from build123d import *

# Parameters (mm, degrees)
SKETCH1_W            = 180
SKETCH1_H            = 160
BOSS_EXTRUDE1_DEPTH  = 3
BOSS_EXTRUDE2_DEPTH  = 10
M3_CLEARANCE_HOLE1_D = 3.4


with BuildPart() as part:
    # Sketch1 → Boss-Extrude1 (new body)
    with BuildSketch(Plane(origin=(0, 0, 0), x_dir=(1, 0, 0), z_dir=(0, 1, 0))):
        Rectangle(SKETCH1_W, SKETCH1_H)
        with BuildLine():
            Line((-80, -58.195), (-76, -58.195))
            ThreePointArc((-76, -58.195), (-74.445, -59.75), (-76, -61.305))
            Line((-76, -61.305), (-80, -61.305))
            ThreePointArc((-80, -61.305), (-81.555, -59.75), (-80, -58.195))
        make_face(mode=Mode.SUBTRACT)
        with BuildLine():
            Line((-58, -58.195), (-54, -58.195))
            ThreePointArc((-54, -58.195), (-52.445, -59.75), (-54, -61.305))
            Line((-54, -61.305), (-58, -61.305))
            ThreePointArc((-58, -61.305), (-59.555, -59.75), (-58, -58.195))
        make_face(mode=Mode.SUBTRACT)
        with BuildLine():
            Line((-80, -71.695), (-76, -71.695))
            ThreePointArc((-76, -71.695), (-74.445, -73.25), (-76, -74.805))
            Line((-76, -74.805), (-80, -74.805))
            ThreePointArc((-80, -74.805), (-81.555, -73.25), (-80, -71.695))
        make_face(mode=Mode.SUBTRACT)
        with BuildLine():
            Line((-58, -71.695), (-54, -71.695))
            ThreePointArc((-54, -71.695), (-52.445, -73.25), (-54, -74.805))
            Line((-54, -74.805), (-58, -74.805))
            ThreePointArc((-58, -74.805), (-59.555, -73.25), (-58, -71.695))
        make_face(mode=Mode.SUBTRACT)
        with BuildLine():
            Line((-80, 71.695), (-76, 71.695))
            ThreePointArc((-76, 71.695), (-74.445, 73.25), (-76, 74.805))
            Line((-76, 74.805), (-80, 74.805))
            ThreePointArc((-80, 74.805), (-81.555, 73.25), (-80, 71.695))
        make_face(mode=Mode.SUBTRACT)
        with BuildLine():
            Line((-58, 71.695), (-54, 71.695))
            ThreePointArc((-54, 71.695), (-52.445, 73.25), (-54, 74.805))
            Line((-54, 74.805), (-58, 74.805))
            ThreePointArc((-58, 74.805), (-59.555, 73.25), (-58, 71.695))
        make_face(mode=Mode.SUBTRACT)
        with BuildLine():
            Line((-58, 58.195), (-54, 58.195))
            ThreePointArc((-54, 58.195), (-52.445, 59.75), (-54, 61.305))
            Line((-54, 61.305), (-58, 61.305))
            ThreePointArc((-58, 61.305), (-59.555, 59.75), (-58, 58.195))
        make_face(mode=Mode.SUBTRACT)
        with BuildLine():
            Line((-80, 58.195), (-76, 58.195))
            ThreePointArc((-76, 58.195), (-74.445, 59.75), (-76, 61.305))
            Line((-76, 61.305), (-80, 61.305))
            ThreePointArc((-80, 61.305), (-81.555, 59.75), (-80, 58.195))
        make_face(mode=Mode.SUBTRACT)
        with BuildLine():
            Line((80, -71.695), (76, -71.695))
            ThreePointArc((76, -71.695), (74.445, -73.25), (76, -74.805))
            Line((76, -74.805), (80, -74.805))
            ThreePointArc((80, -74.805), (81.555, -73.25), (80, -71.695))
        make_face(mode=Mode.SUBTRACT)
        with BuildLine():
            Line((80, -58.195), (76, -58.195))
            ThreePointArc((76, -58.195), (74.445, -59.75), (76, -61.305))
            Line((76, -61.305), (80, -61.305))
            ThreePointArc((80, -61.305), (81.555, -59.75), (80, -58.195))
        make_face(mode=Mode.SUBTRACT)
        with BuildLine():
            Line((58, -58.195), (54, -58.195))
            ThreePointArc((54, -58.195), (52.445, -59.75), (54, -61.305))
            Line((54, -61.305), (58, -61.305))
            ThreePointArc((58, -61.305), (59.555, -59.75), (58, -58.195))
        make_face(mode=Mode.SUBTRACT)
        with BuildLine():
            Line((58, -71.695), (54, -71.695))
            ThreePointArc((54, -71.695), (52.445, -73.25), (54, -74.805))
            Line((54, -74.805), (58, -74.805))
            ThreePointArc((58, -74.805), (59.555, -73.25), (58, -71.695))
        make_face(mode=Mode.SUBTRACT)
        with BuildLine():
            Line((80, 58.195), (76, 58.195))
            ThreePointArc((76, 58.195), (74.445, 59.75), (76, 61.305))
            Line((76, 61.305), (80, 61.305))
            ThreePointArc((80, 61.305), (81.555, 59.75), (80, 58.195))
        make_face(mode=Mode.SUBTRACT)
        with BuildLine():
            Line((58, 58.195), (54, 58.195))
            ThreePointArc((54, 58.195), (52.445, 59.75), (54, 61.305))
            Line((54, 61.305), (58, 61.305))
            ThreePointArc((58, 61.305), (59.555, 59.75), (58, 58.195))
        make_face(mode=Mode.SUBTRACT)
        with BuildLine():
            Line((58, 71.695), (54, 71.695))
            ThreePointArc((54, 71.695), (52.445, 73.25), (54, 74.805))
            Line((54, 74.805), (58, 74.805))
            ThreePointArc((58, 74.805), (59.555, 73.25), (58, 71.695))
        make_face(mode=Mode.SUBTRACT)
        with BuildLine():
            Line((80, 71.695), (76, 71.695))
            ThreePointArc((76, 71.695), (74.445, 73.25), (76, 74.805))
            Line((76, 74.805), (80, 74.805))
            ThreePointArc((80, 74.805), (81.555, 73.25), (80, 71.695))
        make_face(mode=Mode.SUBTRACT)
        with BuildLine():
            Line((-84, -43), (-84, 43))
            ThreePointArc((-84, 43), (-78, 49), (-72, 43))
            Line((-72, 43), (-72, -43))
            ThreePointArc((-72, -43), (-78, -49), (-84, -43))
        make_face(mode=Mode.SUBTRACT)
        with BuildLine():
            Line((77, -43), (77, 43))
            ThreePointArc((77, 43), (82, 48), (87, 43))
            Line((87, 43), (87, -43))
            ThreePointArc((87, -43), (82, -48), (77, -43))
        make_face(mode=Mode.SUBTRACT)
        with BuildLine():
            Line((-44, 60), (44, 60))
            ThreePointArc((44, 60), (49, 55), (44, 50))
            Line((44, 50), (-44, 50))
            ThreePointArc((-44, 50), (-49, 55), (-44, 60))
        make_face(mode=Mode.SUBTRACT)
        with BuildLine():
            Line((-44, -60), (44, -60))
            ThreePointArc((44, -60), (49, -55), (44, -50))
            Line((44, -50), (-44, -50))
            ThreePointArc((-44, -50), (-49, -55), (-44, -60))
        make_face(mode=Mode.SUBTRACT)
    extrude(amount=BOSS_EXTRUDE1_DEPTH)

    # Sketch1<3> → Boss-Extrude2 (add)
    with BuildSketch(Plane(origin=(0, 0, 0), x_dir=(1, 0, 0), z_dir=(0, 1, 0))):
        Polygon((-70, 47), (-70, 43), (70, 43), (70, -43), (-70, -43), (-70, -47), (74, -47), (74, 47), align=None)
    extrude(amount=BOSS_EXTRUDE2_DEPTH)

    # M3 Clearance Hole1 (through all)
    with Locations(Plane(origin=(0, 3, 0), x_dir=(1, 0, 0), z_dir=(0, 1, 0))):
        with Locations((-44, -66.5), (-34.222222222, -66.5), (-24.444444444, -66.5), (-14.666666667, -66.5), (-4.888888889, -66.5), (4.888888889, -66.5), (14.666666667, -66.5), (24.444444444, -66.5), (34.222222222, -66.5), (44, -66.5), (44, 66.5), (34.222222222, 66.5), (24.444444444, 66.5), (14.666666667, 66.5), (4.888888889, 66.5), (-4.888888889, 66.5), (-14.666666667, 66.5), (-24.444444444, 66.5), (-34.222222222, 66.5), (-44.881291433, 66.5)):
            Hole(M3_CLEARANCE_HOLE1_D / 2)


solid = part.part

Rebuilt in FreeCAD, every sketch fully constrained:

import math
import FreeCAD as App
import Part
import Sketcher

doc = App.newDocument("Part")
params = doc.addObject("Spreadsheet::Sheet", "Params")
for row, (alias, value) in enumerate([
    ("sketch1_radius", "5 mm"),
    ("sketch1_radius2", "6 mm"),
    ("sketch1_width", "180 mm"),
    ("sketch1_width2", "4 mm"),
    ("sketch1_width3", "88 mm"),
    ("pad1_length", "3 mm"),
    ("sketch2_width", "140 mm"),
    ("sketch2_width2", "144 mm"),
    ("sketch2_height", "4 mm"),
    ("sketch2_height2", "86 mm"),
    ("pad2_length", "10 mm"),
    ("sketch3_diameter", "3.4 mm"),
    ("hole_diameter", "3.4 mm"),
], start=1):
    params.set(f"A{row}", alias)
    params.set(f"B{row}", "=" + value)
    params.setAlias(f"B{row}", alias)

body = doc.addObject("PartDesign::Body", "Body")

# Sketch on XZ plane
sketch1 = doc.addObject("Sketcher::SketchObject", "Sketch")
body.addObject(sketch1)
sketch1.AttachmentSupport = (doc.XZ_Plane, [""])
sketch1.MapMode = "FlatFace"
sketch1.addGeometry([
    Part.LineSegment(App.Vector(-90, -80, 0), App.Vector(-90, 80, 0)),  # 0
    Part.LineSegment(App.Vector(-90, 80, 0), App.Vector(90, 80, 0)),  # 1
    Part.LineSegment(App.Vector(90, 80, 0), App.Vector(90, -80, 0)),  # 2
    Part.LineSegment(App.Vector(90, -80, 0), App.Vector(-90, -80, 0)),  # 3
    Part.ArcOfCircle(Part.Circle(App.Vector(-80, 73.2, 0), App.Vector(0, 0, 1), 1.6), math.radians(90), math.radians(270)),  # 4
    Part.LineSegment(App.Vector(-80, 71.7, 0), App.Vector(-76, 71.7, 0)),  # 5
    Part.ArcOfCircle(Part.Circle(App.Vector(-76, 73.2, 0), App.Vector(0, 0, 1), 1.6), math.radians(-90), math.radians(90)),  # 6
    Part.LineSegment(App.Vector(-76, 74.8, 0), App.Vector(-80, 74.8, 0)),  # 7
    Part.ArcOfCircle(Part.Circle(App.Vector(-80, 59.8, 0), App.Vector(0, 0, 1), 1.6), math.radians(90), math.radians(270)),  # 8
    Part.LineSegment(App.Vector(-80, 58.2, 0), App.Vector(-76, 58.2, 0)),  # 9
    Part.ArcOfCircle(Part.Circle(App.Vector(-76, 59.8, 0), App.Vector(0, 0, 1), 1.6), math.radians(-90), math.radians(90)),  # 10
    Part.LineSegment(App.Vector(-76, 61.3, 0), App.Vector(-80, 61.3, 0)),  # 11
    Part.ArcOfCircle(Part.Circle(App.Vector(-58, 73.2, 0), App.Vector(0, 0, 1), 1.6), math.radians(90), math.radians(270)),  # 12
    Part.LineSegment(App.Vector(-58, 71.7, 0), App.Vector(-54, 71.7, 0)),  # 13
    Part.ArcOfCircle(Part.Circle(App.Vector(-54, 73.2, 0), App.Vector(0, 0, 1), 1.6), math.radians(-90), math.radians(90)),  # 14
    Part.LineSegment(App.Vector(-54, 74.8, 0), App.Vector(-58, 74.8, 0)),  # 15
    Part.ArcOfCircle(Part.Circle(App.Vector(-58, 59.8, 0), App.Vector(0, 0, 1), 1.6), math.radians(90), math.radians(270)),  # 16
    Part.LineSegment(App.Vector(-58, 58.2, 0), App.Vector(-54, 58.2, 0)),  # 17
    Part.ArcOfCircle(Part.Circle(App.Vector(-54, 59.8, 0), App.Vector(0, 0, 1), 1.6), math.radians(-90), math.radians(90)),  # 18
    Part.LineSegment(App.Vector(-54, 61.3, 0), App.Vector(-58, 61.3, 0)),  # 19
    Part.LineSegment(App.Vector(44, 60, 0), App.Vector(-44, 60, 0)),  # 20
    Part.ArcOfCircle(Part.Circle(App.Vector(-44, 55, 0), App.Vector(0, 0, 1), 5), math.radians(90), math.radians(270)),  # 21
    Part.LineSegment(App.Vector(-44, 50, 0), App.Vector(44, 50, 0)),  # 22
    Part.ArcOfCircle(Part.Circle(App.Vector(44, 55, 0), App.Vector(0, 0, 1), 5), math.radians(-90), math.radians(90)),  # 23
    Part.LineSegment(App.Vector(54, 71.7, 0), App.Vector(58, 71.7, 0)),  # 24
    Part.ArcOfCircle(Part.Circle(App.Vector(58, 73.2, 0), App.Vector(0, 0, 1), 1.6), math.radians(-90), math.radians(90)),  # 25
    Part.LineSegment(App.Vector(58, 74.8, 0), App.Vector(54, 74.8, 0)),  # 26
    Part.ArcOfCircle(Part.Circle(App.Vector(54, 73.2, 0), App.Vector(0, 0, 1), 1.6), math.radians(90), math.radians(270)),  # 27
    Part.LineSegment(App.Vector(54, 58.2, 0), App.Vector(58, 58.2, 0)),  # 28
    Part.ArcOfCircle(Part.Circle(App.Vector(58, 59.8, 0), App.Vector(0, 0, 1), 1.6), math.radians(-90), math.radians(90)),  # 29
    Part.LineSegment(App.Vector(58, 61.3, 0), App.Vector(54, 61.3, 0)),  # 30
    Part.ArcOfCircle(Part.Circle(App.Vector(54, 59.8, 0), App.Vector(0, 0, 1), 1.6), math.radians(90), math.radians(270)),  # 31
    Part.LineSegment(App.Vector(76, 71.7, 0), App.Vector(80, 71.7, 0)),  # 32
    Part.ArcOfCircle(Part.Circle(App.Vector(80, 73.2, 0), App.Vector(0, 0, 1), 1.6), math.radians(-90), math.radians(90)),  # 33
    Part.LineSegment(App.Vector(80, 74.8, 0), App.Vector(76, 74.8, 0)),  # 34
    Part.ArcOfCircle(Part.Circle(App.Vector(76, 73.2, 0), App.Vector(0, 0, 1), 1.6), math.radians(90), math.radians(270)),  # 35
    Part.LineSegment(App.Vector(76, 58.2, 0), App.Vector(80, 58.2, 0)),  # 36
    Part.ArcOfCircle(Part.Circle(App.Vector(80, 59.8, 0), App.Vector(0, 0, 1), 1.6), math.radians(-90), math.radians(90)),  # 37
    Part.LineSegment(App.Vector(80, 61.3, 0), App.Vector(76, 61.3, 0)),  # 38
    Part.ArcOfCircle(Part.Circle(App.Vector(76, 59.8, 0), App.Vector(0, 0, 1), 1.6), math.radians(90), math.radians(270)),  # 39
    Part.ArcOfCircle(Part.Circle(App.Vector(-78, 43, 0), App.Vector(0, 0, 1), 6), math.radians(0), math.radians(180)),  # 40
    Part.LineSegment(App.Vector(-84, 43, 0), App.Vector(-84, -43, 0)),  # 41
    Part.ArcOfCircle(Part.Circle(App.Vector(-78, -43, 0), App.Vector(0, 0, 1), 6), math.radians(180), math.radians(360)),  # 42
    Part.LineSegment(App.Vector(-72, -43, 0), App.Vector(-72, 43, 0)),  # 43
    Part.LineSegment(App.Vector(-76, -58.2, 0), App.Vector(-80, -58.2, 0)),  # 44
    Part.ArcOfCircle(Part.Circle(App.Vector(-80, -59.8, 0), App.Vector(0, 0, 1), 1.6), math.radians(90), math.radians(270)),  # 45
    Part.LineSegment(App.Vector(-80, -61.3, 0), App.Vector(-76, -61.3, 0)),  # 46
    Part.ArcOfCircle(Part.Circle(App.Vector(-76, -59.8, 0), App.Vector(0, 0, 1), 1.6), math.radians(-90), math.radians(90)),  # 47
    Part.LineSegment(App.Vector(-76, -71.7, 0), App.Vector(-80, -71.7, 0)),  # 48
    Part.ArcOfCircle(Part.Circle(App.Vector(-80, -73.2, 0), App.Vector(0, 0, 1), 1.6), math.radians(90), math.radians(270)),  # 49
    Part.LineSegment(App.Vector(-80, -74.8, 0), App.Vector(-76, -74.8, 0)),  # 50
    Part.ArcOfCircle(Part.Circle(App.Vector(-76, -73.2, 0), App.Vector(0, 0, 1), 1.6), math.radians(-90), math.radians(90)),  # 51
    Part.LineSegment(App.Vector(-54, -58.2, 0), App.Vector(-58, -58.2, 0)),  # 52
    Part.ArcOfCircle(Part.Circle(App.Vector(-58, -59.8, 0), App.Vector(0, 0, 1), 1.6), math.radians(90), math.radians(270)),  # 53
    Part.LineSegment(App.Vector(-58, -61.3, 0), App.Vector(-54, -61.3, 0)),  # 54
    Part.ArcOfCircle(Part.Circle(App.Vector(-54, -59.8, 0), App.Vector(0, 0, 1), 1.6), math.radians(-90), math.radians(90)),  # 55
    Part.LineSegment(App.Vector(-54, -71.7, 0), App.Vector(-58, -71.7, 0)),  # 56
    Part.ArcOfCircle(Part.Circle(App.Vector(-58, -73.2, 0), App.Vector(0, 0, 1), 1.6), math.radians(90), math.radians(270)),  # 57
    Part.LineSegment(App.Vector(-58, -74.8, 0), App.Vector(-54, -74.8, 0)),  # 58
    Part.ArcOfCircle(Part.Circle(App.Vector(-54, -73.2, 0), App.Vector(0, 0, 1), 1.6), math.radians(-90), math.radians(90)),  # 59
    Part.ArcOfCircle(Part.Circle(App.Vector(-44, -55, 0), App.Vector(0, 0, 1), 5), math.radians(90), math.radians(270)),  # 60
    Part.LineSegment(App.Vector(-44, -60, 0), App.Vector(44, -60, 0)),  # 61
    Part.ArcOfCircle(Part.Circle(App.Vector(44, -55, 0), App.Vector(0, 0, 1), 5), math.radians(-90), math.radians(90)),  # 62
    Part.LineSegment(App.Vector(44, -50, 0), App.Vector(-44, -50, 0)),  # 63
    Part.ArcOfCircle(Part.Circle(App.Vector(82, 43, 0), App.Vector(0, 0, 1), 5), math.radians(0), math.radians(180)),  # 64
    Part.LineSegment(App.Vector(77, 43, 0), App.Vector(77, -43, 0)),  # 65
    Part.ArcOfCircle(Part.Circle(App.Vector(82, -43, 0), App.Vector(0, 0, 1), 5), math.radians(180), math.radians(360)),  # 66
    Part.LineSegment(App.Vector(87, -43, 0), App.Vector(87, 43, 0)),  # 67
    Part.ArcOfCircle(Part.Circle(App.Vector(58, -59.8, 0), App.Vector(0, 0, 1), 1.6), math.radians(-90), math.radians(90)),  # 68
    Part.LineSegment(App.Vector(58, -58.2, 0), App.Vector(54, -58.2, 0)),  # 69
    Part.ArcOfCircle(Part.Circle(App.Vector(54, -59.8, 0), App.Vector(0, 0, 1), 1.6), math.radians(90), math.radians(270)),  # 70
    Part.LineSegment(App.Vector(54, -61.3, 0), App.Vector(58, -61.3, 0)),  # 71
    Part.ArcOfCircle(Part.Circle(App.Vector(58, -73.2, 0), App.Vector(0, 0, 1), 1.6), math.radians(-90), math.radians(90)),  # 72
    Part.LineSegment(App.Vector(58, -71.7, 0), App.Vector(54, -71.7, 0)),  # 73
    Part.ArcOfCircle(Part.Circle(App.Vector(54, -73.2, 0), App.Vector(0, 0, 1), 1.6), math.radians(90), math.radians(270)),  # 74
    Part.LineSegment(App.Vector(54, -74.8, 0), App.Vector(58, -74.8, 0)),  # 75
    Part.ArcOfCircle(Part.Circle(App.Vector(80, -59.8, 0), App.Vector(0, 0, 1), 1.6), math.radians(-90), math.radians(90)),  # 76
    Part.LineSegment(App.Vector(80, -58.2, 0), App.Vector(76, -58.2, 0)),  # 77
    Part.ArcOfCircle(Part.Circle(App.Vector(76, -59.8, 0), App.Vector(0, 0, 1), 1.6), math.radians(90), math.radians(270)),  # 78
    Part.LineSegment(App.Vector(76, -61.3, 0), App.Vector(80, -61.3, 0)),  # 79
    Part.ArcOfCircle(Part.Circle(App.Vector(80, -73.2, 0), App.Vector(0, 0, 1), 1.6), math.radians(-90), math.radians(90)),  # 80
    Part.LineSegment(App.Vector(80, -71.7, 0), App.Vector(76, -71.7, 0)),  # 81
    Part.ArcOfCircle(Part.Circle(App.Vector(76, -73.2, 0), App.Vector(0, 0, 1), 1.6), math.radians(90), math.radians(270)),  # 82
    Part.LineSegment(App.Vector(76, -74.8, 0), App.Vector(80, -74.8, 0)),  # 83
], False)
sketch1.addConstraint([
    Sketcher.Constraint("Coincident", 0, 2, 1, 1),
    Sketcher.Constraint("Coincident", 1, 2, 2, 1),
    Sketcher.Constraint("Coincident", 2, 2, 3, 1),
    Sketcher.Constraint("Coincident", 3, 2, 0, 1),
    Sketcher.Constraint("Tangent", 4, 2, 5, 1),
    Sketcher.Constraint("Tangent", 5, 2, 6, 1),
    Sketcher.Constraint("Tangent", 6, 2, 7, 1),
    Sketcher.Constraint("Tangent", 7, 2, 4, 1),
    Sketcher.Constraint("Tangent", 8, 2, 9, 1),
    Sketcher.Constraint("Tangent", 9, 2, 10, 1),
    Sketcher.Constraint("Tangent", 10, 2, 11, 1),
    Sketcher.Constraint("Tangent", 11, 2, 8, 1),
    Sketcher.Constraint("Tangent", 12, 2, 13, 1),
    Sketcher.Constraint("Tangent", 13, 2, 14, 1),
    Sketcher.Constraint("Tangent", 14, 2, 15, 1),
    Sketcher.Constraint("Tangent", 15, 2, 12, 1),
    Sketcher.Constraint("Tangent", 16, 2, 17, 1),
    Sketcher.Constraint("Tangent", 17, 2, 18, 1),
    Sketcher.Constraint("Tangent", 18, 2, 19, 1),
    Sketcher.Constraint("Tangent", 19, 2, 16, 1),
    Sketcher.Constraint("Tangent", 20, 2, 21, 1),
    Sketcher.Constraint("Tangent", 21, 2, 22, 1),
    Sketcher.Constraint("Tangent", 22, 2, 23, 1),
    Sketcher.Constraint("Tangent", 23, 2, 20, 1),
    Sketcher.Constraint("Tangent", 24, 2, 25, 1),
    Sketcher.Constraint("Tangent", 25, 2, 26, 1),
    Sketcher.Constraint("Tangent", 26, 2, 27, 1),
    Sketcher.Constraint("Tangent", 27, 2, 24, 1),
    Sketcher.Constraint("Tangent", 28, 2, 29, 1),
    Sketcher.Constraint("Tangent", 29, 2, 30, 1),
    Sketcher.Constraint("Tangent", 30, 2, 31, 1),
    Sketcher.Constraint("Tangent", 31, 2, 28, 1),
    Sketcher.Constraint("Tangent", 32, 2, 33, 1),
    Sketcher.Constraint("Tangent", 33, 2, 34, 1),
    Sketcher.Constraint("Tangent", 34, 2, 35, 1),
    Sketcher.Constraint("Tangent", 35, 2, 32, 1),
    Sketcher.Constraint("Tangent", 36, 2, 37, 1),
    Sketcher.Constraint("Tangent", 37, 2, 38, 1),
    Sketcher.Constraint("Tangent", 38, 2, 39, 1),
    Sketcher.Constraint("Tangent", 39, 2, 36, 1),
    Sketcher.Constraint("Tangent", 40, 2, 41, 1),
    Sketcher.Constraint("Tangent", 41, 2, 42, 1),
    Sketcher.Constraint("Tangent", 42, 2, 43, 1),
    Sketcher.Constraint("Tangent", 43, 2, 40, 1),
    Sketcher.Constraint("Tangent", 44, 2, 45, 1),
    Sketcher.Constraint("Tangent", 45, 2, 46, 1),
    Sketcher.Constraint("Tangent", 46, 2, 47, 1),
    Sketcher.Constraint("Tangent", 47, 2, 44, 1),
    Sketcher.Constraint("Tangent", 48, 2, 49, 1),
    Sketcher.Constraint("Tangent", 49, 2, 50, 1),
    Sketcher.Constraint("Tangent", 50, 2, 51, 1),
    Sketcher.Constraint("Tangent", 51, 2, 48, 1),
    Sketcher.Constraint("Tangent", 52, 2, 53, 1),
    Sketcher.Constraint("Tangent", 53, 2, 54, 1),
    Sketcher.Constraint("Tangent", 54, 2, 55, 1),
    Sketcher.Constraint("Tangent", 55, 2, 52, 1),
    Sketcher.Constraint("Tangent", 56, 2, 57, 1),
    Sketcher.Constraint("Tangent", 57, 2, 58, 1),
    Sketcher.Constraint("Tangent", 58, 2, 59, 1),
    Sketcher.Constraint("Tangent", 59, 2, 56, 1),
    Sketcher.Constraint("Tangent", 60, 2, 61, 1),
    Sketcher.Constraint("Tangent", 61, 2, 62, 1),
    Sketcher.Constraint("Tangent", 62, 2, 63, 1),
    Sketcher.Constraint("Tangent", 63, 2, 60, 1),
    Sketcher.Constraint("Tangent", 64, 2, 65, 1),
    Sketcher.Constraint("Tangent", 65, 2, 66, 1),
    Sketcher.Constraint("Tangent", 66, 2, 67, 1),
    Sketcher.Constraint("Tangent", 67, 2, 64, 1),
    Sketcher.Constraint("Tangent", 68, 2, 69, 1),
    Sketcher.Constraint("Tangent", 69, 2, 70, 1),
    Sketcher.Constraint("Tangent", 70, 2, 71, 1),
    Sketcher.Constraint("Tangent", 71, 2, 68, 1),
    Sketcher.Constraint("Tangent", 72, 2, 73, 1),
    Sketcher.Constraint("Tangent", 73, 2, 74, 1),
    Sketcher.Constraint("Tangent", 74, 2, 75, 1),
    Sketcher.Constraint("Tangent", 75, 2, 72, 1),
    Sketcher.Constraint("Tangent", 76, 2, 77, 1),
    Sketcher.Constraint("Tangent", 77, 2, 78, 1),
    Sketcher.Constraint("Tangent", 78, 2, 79, 1),
    Sketcher.Constraint("Tangent", 79, 2, 76, 1),
    Sketcher.Constraint("Tangent", 80, 2, 81, 1),
    Sketcher.Constraint("Tangent", 81, 2, 82, 1),
    Sketcher.Constraint("Tangent", 82, 2, 83, 1),
    Sketcher.Constraint("Tangent", 83, 2, 80, 1),
    Sketcher.Constraint("Vertical", 0),
    Sketcher.Constraint("Horizontal", 1),
    Sketcher.Constraint("Vertical", 2),
    Sketcher.Constraint("Horizontal", 3),
    Sketcher.Constraint("Horizontal", 5),
    Sketcher.Constraint("Horizontal", 7),
    Sketcher.Constraint("Horizontal", 9),
    Sketcher.Constraint("Horizontal", 11),
    Sketcher.Constraint("Horizontal", 13),
    Sketcher.Constraint("Horizontal", 15),
    Sketcher.Constraint("Horizontal", 17),
    Sketcher.Constraint("Horizontal", 19),
    Sketcher.Constraint("Horizontal", 20),
    Sketcher.Constraint("Horizontal", 22),
    Sketcher.Constraint("Horizontal", 24),
    Sketcher.Constraint("Horizontal", 26),
    Sketcher.Constraint("Horizontal", 28),
    Sketcher.Constraint("Horizontal", 30),
    Sketcher.Constraint("Horizontal", 32),
    Sketcher.Constraint("Horizontal", 34),
    Sketcher.Constraint("Horizontal", 36),
    Sketcher.Constraint("Horizontal", 38),
    Sketcher.Constraint("Vertical", 41),
    Sketcher.Constraint("Vertical", 43),
    Sketcher.Constraint("Horizontal", 44),
    Sketcher.Constraint("Horizontal", 46),
    Sketcher.Constraint("Horizontal", 48),
    Sketcher.Constraint("Horizontal", 50),
    Sketcher.Constraint("Horizontal", 52),
    Sketcher.Constraint("Horizontal", 54),
    Sketcher.Constraint("Horizontal", 56),
    Sketcher.Constraint("Horizontal", 58),
    Sketcher.Constraint("Horizontal", 61),
    Sketcher.Constraint("Horizontal", 63),
    Sketcher.Constraint("Vertical", 65),
    Sketcher.Constraint("Vertical", 67),
    Sketcher.Constraint("Horizontal", 69),
    Sketcher.Constraint("Horizontal", 71),
    Sketcher.Constraint("Horizontal", 73),
    Sketcher.Constraint("Horizontal", 75),
    Sketcher.Constraint("Horizontal", 77),
    Sketcher.Constraint("Horizontal", 79),
    Sketcher.Constraint("Horizontal", 81),
    Sketcher.Constraint("Horizontal", 83),
    Sketcher.Constraint("Equal", 6, 8),
    Sketcher.Constraint("Equal", 10, 12),
    Sketcher.Constraint("Equal", 14, 16),
    Sketcher.Constraint("Equal", 18, 25),
    Sketcher.Constraint("Equal", 27, 29),
    Sketcher.Constraint("Equal", 31, 33),
    Sketcher.Constraint("Equal", 35, 37),
    Sketcher.Constraint("Equal", 39, 45),
    Sketcher.Constraint("Equal", 47, 49),
    Sketcher.Constraint("Equal", 51, 53),
    Sketcher.Constraint("Equal", 55, 57),
    Sketcher.Constraint("Equal", 23, 60),
    Sketcher.Constraint("Equal", 62, 64),
    Sketcher.Constraint("Equal", 59, 68),
    Sketcher.Constraint("Equal", 70, 72),
    Sketcher.Constraint("Equal", 74, 76),
    Sketcher.Constraint("Equal", 78, 80),
    Sketcher.Constraint("Symmetric", 37, 3, 45, 3, -1, 1),
    Sketcher.Constraint("Symmetric", 33, 3, 49, 3, -1, 1),
    Sketcher.Constraint("Symmetric", 29, 3, 53, 3, -1, 1),
    Sketcher.Constraint("Symmetric", 25, 3, 57, 3, -1, 1),
    Sketcher.Constraint("Symmetric", 23, 3, 60, 3, -1, 1),
    Sketcher.Constraint("Symmetric", 16, 3, 68, 3, -1, 1),
    Sketcher.Constraint("Symmetric", 12, 3, 72, 3, -1, 1),
    Sketcher.Constraint("Symmetric", 8, 3, 76, 3, -1, 1),
    Sketcher.Constraint("Symmetric", 4, 3, 80, 3, -1, 1),
    Sketcher.Constraint("Symmetric", 0, 2, 2, 2, -1, 1),
    Sketcher.Constraint("Symmetric", 12, 3, 25, 3, -2),
    Sketcher.Constraint("Symmetric", 16, 3, 29, 3, -2),
    Sketcher.Constraint("Symmetric", 4, 3, 33, 3, -2),
    Sketcher.Constraint("Symmetric", 8, 3, 37, 3, -2),
    Sketcher.Constraint("Horizontal", 6, 3, 12, 3),
    Sketcher.Constraint("Horizontal", 10, 3, 16, 3),
    Sketcher.Constraint("Horizontal", 40, 3, 64, 3),
    Sketcher.Constraint("Horizontal", 42, 3, 66, 3),
    Sketcher.Constraint("Vertical", 4, 3, 8, 3),
    Sketcher.Constraint("Vertical", 6, 3, 10, 3),
    Sketcher.Constraint("Vertical", 12, 3, 16, 3),
    Sketcher.Constraint("Vertical", 14, 3, 18, 3),
    Sketcher.Constraint("Vertical", 27, 3, 31, 3),
    Sketcher.Constraint("Vertical", 35, 3, 39, 3),
    Sketcher.Constraint("Vertical", 10, 3, 47, 3),
    Sketcher.Constraint("Vertical", 47, 3, 51, 3),
    Sketcher.Constraint("Vertical", 18, 3, 55, 3),
    Sketcher.Constraint("Vertical", 55, 3, 59, 3),
    Sketcher.Constraint("Vertical", 21, 3, 60, 3),
    Sketcher.Constraint("Vertical", 23, 3, 62, 3),
    Sketcher.Constraint("Vertical", 31, 3, 70, 3),
    Sketcher.Constraint("Vertical", 70, 3, 74, 3),
    Sketcher.Constraint("Vertical", 39, 3, 78, 3),
    Sketcher.Constraint("Vertical", 78, 3, 82, 3),
    Sketcher.Constraint("Equal", 11, 13),
    Sketcher.Constraint("Equal", 19, 24),
    Sketcher.Constraint("Equal", 30, 32),
    Sketcher.Constraint("Radius", 21, 5.0),
    Sketcher.Constraint("Radius", 40, 6.0),
    Sketcher.Constraint("DistanceX", 1, 1, 1, 2, 180.0),
    Sketcher.Constraint("DistanceX", 5, 1, 5, 2, 4.0),
    Sketcher.Constraint("DistanceX", 20, 2, 20, 1, 88.0),
    Sketcher.Constraint("DistanceY", 0, 1, 0, 2, 160.0),
    Sketcher.Constraint("DistanceY", 41, 2, 41, 1, 86.0),
    Sketcher.Constraint("DistanceX", 4, 3, -1, 1, 80.0),
    Sketcher.Constraint("DistanceX", 12, 3, -1, 1, 58.0),
    Sketcher.Constraint("DistanceY", -1, 1, 21, 3, 55.0),
    Sketcher.Constraint("DistanceX", 40, 3, -1, 1, 78.0),
    Sketcher.Constraint("DistanceY", -1, 1, 40, 3, 43.0),
    Sketcher.Constraint("DistanceX", -1, 1, 64, 3, 82.0),
    Sketcher.Constraint("Radius", 4, 1.555),
    Sketcher.Constraint("DistanceY", -1, 1, 4, 3, 73.25),
    Sketcher.Constraint("DistanceY", -1, 1, 8, 3, 59.75),
])
sketch1.setExpression("Constraints[182]", "Params.sketch1_radius")
sketch1.setExpression("Constraints[183]", "Params.sketch1_radius2")
sketch1.setExpression("Constraints[184]", "Params.sketch1_width")
sketch1.setExpression("Constraints[185]", "Params.sketch1_width2")
sketch1.setExpression("Constraints[186]", "Params.sketch1_width3")
pad1 = doc.addObject("PartDesign::Pad", "Pad")
body.addObject(pad1)
pad1.Profile = sketch1
pad1.setExpression("Length", "Params.pad1_length")
pad1.Reversed = True

# Sketch on XZ plane
sketch2 = doc.addObject("Sketcher::SketchObject", "Sketch001")
body.addObject(sketch2)
sketch2.AttachmentSupport = (doc.XZ_Plane, [""])
sketch2.MapMode = "FlatFace"
sketch2.addGeometry([
    Part.LineSegment(App.Vector(-70, -47, 0), App.Vector(-70, -43, 0)),  # 0
    Part.LineSegment(App.Vector(-70, -43, 0), App.Vector(70, -43, 0)),  # 1
    Part.LineSegment(App.Vector(70, -43, 0), App.Vector(70, 43, 0)),  # 2
    Part.LineSegment(App.Vector(70, 43, 0), App.Vector(-70, 43, 0)),  # 3
    Part.LineSegment(App.Vector(-70, 43, 0), App.Vector(-70, 47, 0)),  # 4
    Part.LineSegment(App.Vector(-70, 47, 0), App.Vector(74, 47, 0)),  # 5
    Part.LineSegment(App.Vector(74, 47, 0), App.Vector(74, -47, 0)),  # 6
    Part.LineSegment(App.Vector(74, -47, 0), App.Vector(-70, -47, 0)),  # 7
], False)
sketch2.addConstraint([
    Sketcher.Constraint("Coincident", 0, 2, 1, 1),
    Sketcher.Constraint("Coincident", 1, 2, 2, 1),
    Sketcher.Constraint("Coincident", 2, 2, 3, 1),
    Sketcher.Constraint("Coincident", 3, 2, 4, 1),
    Sketcher.Constraint("Coincident", 4, 2, 5, 1),
    Sketcher.Constraint("Coincident", 5, 2, 6, 1),
    Sketcher.Constraint("Coincident", 6, 2, 7, 1),
    Sketcher.Constraint("Coincident", 7, 2, 0, 1),
    Sketcher.Constraint("Vertical", 0),
    Sketcher.Constraint("Horizontal", 1),
    Sketcher.Constraint("Vertical", 2),
    Sketcher.Constraint("Horizontal", 3),
    Sketcher.Constraint("Vertical", 4),
    Sketcher.Constraint("Horizontal", 5),
    Sketcher.Constraint("Vertical", 6),
    Sketcher.Constraint("Horizontal", 7),
    Sketcher.Constraint("Symmetric", 0, 2, 2, 2, -1, 1),
    Sketcher.Constraint("Symmetric", 4, 2, 7, 2, -1),
    Sketcher.Constraint("DistanceX", 1, 1, 1, 2, 140.0),
    Sketcher.Constraint("DistanceX", 5, 1, 5, 2, 144.0),
    Sketcher.Constraint("DistanceY", 0, 1, 0, 2, 4.0),
    Sketcher.Constraint("DistanceY", 2, 1, 2, 2, 86.0),
])
sketch2.setExpression("Constraints[18]", "Params.sketch2_width")
sketch2.setExpression("Constraints[19]", "Params.sketch2_width2")
sketch2.setExpression("Constraints[20]", "Params.sketch2_height")
sketch2.setExpression("Constraints[21]", "Params.sketch2_height2")
pad2 = doc.addObject("PartDesign::Pad", "Pad001")
body.addObject(pad2)
pad2.Profile = sketch2
pad2.setExpression("Length", "Params.pad2_length")
pad2.Reversed = True

# Sketch on XZ plane
sketch3 = doc.addObject("Sketcher::SketchObject", "Sketch002")
body.addObject(sketch3)
sketch3.AttachmentSupport = (doc.XZ_Plane, [""])
sketch3.MapMode = "FlatFace"
sketch3.AttachmentOffset = App.Placement(App.Vector(0, 0, -3), App.Rotation())
sketch3.addGeometry([
    Part.Circle(App.Vector(-44, 66.5, 0), App.Vector(0, 0, 1), 1.7),  # 0
    Part.Circle(App.Vector(-34.2, 66.5, 0), App.Vector(0, 0, 1), 1.7),  # 1
    Part.Circle(App.Vector(-24.4, 66.5, 0), App.Vector(0, 0, 1), 1.7),  # 2
    Part.Circle(App.Vector(-14.7, 66.5, 0), App.Vector(0, 0, 1), 1.7),  # 3
    Part.Circle(App.Vector(-4.9, 66.5, 0), App.Vector(0, 0, 1), 1.7),  # 4
    Part.Circle(App.Vector(4.9, 66.5, 0), App.Vector(0, 0, 1), 1.7),  # 5
    Part.Circle(App.Vector(14.7, 66.5, 0), App.Vector(0, 0, 1), 1.7),  # 6
    Part.Circle(App.Vector(24.4, 66.5, 0), App.Vector(0, 0, 1), 1.7),  # 7
    Part.Circle(App.Vector(34.2, 66.5, 0), App.Vector(0, 0, 1), 1.7),  # 8
    Part.Circle(App.Vector(44, 66.5, 0), App.Vector(0, 0, 1), 1.7),  # 9
    Part.Circle(App.Vector(44, -66.5, 0), App.Vector(0, 0, 1), 1.7),  # 10
    Part.Circle(App.Vector(34.2, -66.5, 0), App.Vector(0, 0, 1), 1.7),  # 11
    Part.Circle(App.Vector(24.4, -66.5, 0), App.Vector(0, 0, 1), 1.7),  # 12
    Part.Circle(App.Vector(14.7, -66.5, 0), App.Vector(0, 0, 1), 1.7),  # 13
    Part.Circle(App.Vector(4.9, -66.5, 0), App.Vector(0, 0, 1), 1.7),  # 14
    Part.Circle(App.Vector(-4.9, -66.5, 0), App.Vector(0, 0, 1), 1.7),  # 15
    Part.Circle(App.Vector(-14.7, -66.5, 0), App.Vector(0, 0, 1), 1.7),  # 16
    Part.Circle(App.Vector(-24.4, -66.5, 0), App.Vector(0, 0, 1), 1.7),  # 17
    Part.Circle(App.Vector(-34.2, -66.5, 0), App.Vector(0, 0, 1), 1.7),  # 18
    Part.Circle(App.Vector(-44.9, -66.5, 0), App.Vector(0, 0, 1), 1.7),  # 19
], False)
sketch3.addConstraint([
    Sketcher.Constraint("Equal", 0, 1),
    Sketcher.Constraint("Equal", 1, 2),
    Sketcher.Constraint("Equal", 2, 3),
    Sketcher.Constraint("Equal", 3, 4),
    Sketcher.Constraint("Equal", 4, 5),
    Sketcher.Constraint("Equal", 5, 6),
    Sketcher.Constraint("Equal", 6, 7),
    Sketcher.Constraint("Equal", 7, 8),
    Sketcher.Constraint("Equal", 8, 9),
    Sketcher.Constraint("Equal", 9, 10),
    Sketcher.Constraint("Equal", 10, 11),
    Sketcher.Constraint("Equal", 11, 12),
    Sketcher.Constraint("Equal", 12, 13),
    Sketcher.Constraint("Equal", 13, 14),
    Sketcher.Constraint("Equal", 14, 15),
    Sketcher.Constraint("Equal", 15, 16),
    Sketcher.Constraint("Equal", 16, 17),
    Sketcher.Constraint("Equal", 17, 18),
    Sketcher.Constraint("Equal", 18, 19),
    Sketcher.Constraint("Symmetric", 0, 3, 10, 3, -1, 1),
    Sketcher.Constraint("Symmetric", 1, 3, 11, 3, -1, 1),
    Sketcher.Constraint("Symmetric", 2, 3, 12, 3, -1, 1),
    Sketcher.Constraint("Symmetric", 3, 3, 13, 3, -1, 1),
    Sketcher.Constraint("Symmetric", 4, 3, 14, 3, -1, 1),
    Sketcher.Constraint("Symmetric", 5, 3, 15, 3, -1, 1),
    Sketcher.Constraint("Symmetric", 6, 3, 16, 3, -1, 1),
    Sketcher.Constraint("Symmetric", 7, 3, 17, 3, -1, 1),
    Sketcher.Constraint("Symmetric", 8, 3, 18, 3, -1, 1),
    Sketcher.Constraint("Symmetric", 4, 3, 5, 3, -2),
    Sketcher.Constraint("Symmetric", 3, 3, 6, 3, -2),
    Sketcher.Constraint("Symmetric", 2, 3, 7, 3, -2),
    Sketcher.Constraint("Symmetric", 1, 3, 8, 3, -2),
    Sketcher.Constraint("Symmetric", 0, 3, 9, 3, -2),
    Sketcher.Constraint("Horizontal", 0, 3, 1, 3),
    Sketcher.Constraint("Horizontal", 1, 3, 2, 3),
    Sketcher.Constraint("Horizontal", 2, 3, 3, 3),
    Sketcher.Constraint("Horizontal", 3, 3, 4, 3),
    Sketcher.Constraint("Horizontal", 18, 3, 19, 3),
    Sketcher.Constraint("Diameter", 0, 3.4),
    Sketcher.Constraint("DistanceX", 0, 3, -1, 1, 44.0),
    Sketcher.Constraint("DistanceY", 10, 3, 9, 3, 133.0),
    Sketcher.Constraint("DistanceX", 4, 3, -1, 1, 4.888889),
    Sketcher.Constraint("DistanceX", 19, 3, -1, 1, 44.881291),
    Sketcher.Constraint("DistanceX", 1, 3, 5, 3, 39.111111),
    Sketcher.Constraint("DistanceX", 2, 3, 6, 3, 39.111111),
    Sketcher.Constraint("DistanceX", 1, 3, 6, 3, 48.888889),
])
sketch3.setExpression("Constraints[38]", "Params.sketch3_diameter")
doc.recompute()
hole = doc.addObject("PartDesign::Hole", "Hole")
body.addObject(hole)
hole.Profile = sketch3
hole.ThreadType = "None"
hole.setExpression("Diameter", "Params.hole_diameter")
hole.DepthType = "ThroughAll"
hole.Reversed = True

doc.recompute()
